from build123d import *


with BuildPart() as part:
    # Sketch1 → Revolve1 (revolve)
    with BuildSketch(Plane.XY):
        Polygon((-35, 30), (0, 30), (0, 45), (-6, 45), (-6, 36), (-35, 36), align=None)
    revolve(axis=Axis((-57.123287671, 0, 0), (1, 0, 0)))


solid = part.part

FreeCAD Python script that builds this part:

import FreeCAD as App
import Part
import Sketcher


def add_polygon(sketch, points):
    """Adds a closed chain of lines whose ends are joined by coincident constraints."""
    first, n = sketch.GeometryCount, len(points)
    for a, b in zip(points, points[1:] + points[:1]):
        sketch.addGeometry(Part.LineSegment(App.Vector(*a, 0), App.Vector(*b, 0)), False)
    for i in range(n):
        sketch.addConstraint(Sketcher.Constraint("Coincident", first + i, 2, first + (i + 1) % n, 1))

doc = App.newDocument("Part")
body = doc.addObject("PartDesign::Body", "Body")

# Sketch on XY plane
sketch1 = doc.addObject("Sketcher::SketchObject", "Sketch")
body.addObject(sketch1)
sketch1.AttachmentSupport = (doc.XY_Plane, [""])
sketch1.MapMode = "FlatFace"
add_polygon(sketch1, [(-35, 30), (0, 30), (0, 45), (-6, 45), (-6, 36), (-35, 36)])  # lines 0-5
sketch1.addConstraint(Sketcher.Constraint("Horizontal", 0))
sketch1.addConstraint(Sketcher.Constraint("Vertical", 1))
sketch1.addConstraint(Sketcher.Constraint("Horizontal", 2))
sketch1.addConstraint(Sketcher.Constraint("Vertical", 3))
sketch1.addConstraint(Sketcher.Constraint("Horizontal", 4))
sketch1.addConstraint(Sketcher.Constraint("Vertical", 5))
sketch1.addConstraint(Sketcher.Constraint("PointOnObject", 0, 2, -2))
sketch1.addConstraint(Sketcher.Constraint("Equal", 2, 5))
sketch1.addConstraint(Sketcher.Constraint("DistanceX", 0, 1, 0, 2, 35.0))
sketch1.addConstraint(Sketcher.Constraint("DistanceX", 2, 2, 2, 1, 6.0))
sketch1.addConstraint(Sketcher.Constraint("DistanceY", 1, 1, 1, 2, 15.0))
sketch1.addConstraint(Sketcher.Constraint("DistanceY", -1, 1, 0, 2, 30.0))
revolution = doc.addObject("PartDesign::Revolution", "Revolution")
body.addObject(revolution)
revolution.Profile = sketch1
revolution.ReferenceAxis = (sketch1, ["H_Axis"])
revolution.Angle = 360

doc.recompute()
